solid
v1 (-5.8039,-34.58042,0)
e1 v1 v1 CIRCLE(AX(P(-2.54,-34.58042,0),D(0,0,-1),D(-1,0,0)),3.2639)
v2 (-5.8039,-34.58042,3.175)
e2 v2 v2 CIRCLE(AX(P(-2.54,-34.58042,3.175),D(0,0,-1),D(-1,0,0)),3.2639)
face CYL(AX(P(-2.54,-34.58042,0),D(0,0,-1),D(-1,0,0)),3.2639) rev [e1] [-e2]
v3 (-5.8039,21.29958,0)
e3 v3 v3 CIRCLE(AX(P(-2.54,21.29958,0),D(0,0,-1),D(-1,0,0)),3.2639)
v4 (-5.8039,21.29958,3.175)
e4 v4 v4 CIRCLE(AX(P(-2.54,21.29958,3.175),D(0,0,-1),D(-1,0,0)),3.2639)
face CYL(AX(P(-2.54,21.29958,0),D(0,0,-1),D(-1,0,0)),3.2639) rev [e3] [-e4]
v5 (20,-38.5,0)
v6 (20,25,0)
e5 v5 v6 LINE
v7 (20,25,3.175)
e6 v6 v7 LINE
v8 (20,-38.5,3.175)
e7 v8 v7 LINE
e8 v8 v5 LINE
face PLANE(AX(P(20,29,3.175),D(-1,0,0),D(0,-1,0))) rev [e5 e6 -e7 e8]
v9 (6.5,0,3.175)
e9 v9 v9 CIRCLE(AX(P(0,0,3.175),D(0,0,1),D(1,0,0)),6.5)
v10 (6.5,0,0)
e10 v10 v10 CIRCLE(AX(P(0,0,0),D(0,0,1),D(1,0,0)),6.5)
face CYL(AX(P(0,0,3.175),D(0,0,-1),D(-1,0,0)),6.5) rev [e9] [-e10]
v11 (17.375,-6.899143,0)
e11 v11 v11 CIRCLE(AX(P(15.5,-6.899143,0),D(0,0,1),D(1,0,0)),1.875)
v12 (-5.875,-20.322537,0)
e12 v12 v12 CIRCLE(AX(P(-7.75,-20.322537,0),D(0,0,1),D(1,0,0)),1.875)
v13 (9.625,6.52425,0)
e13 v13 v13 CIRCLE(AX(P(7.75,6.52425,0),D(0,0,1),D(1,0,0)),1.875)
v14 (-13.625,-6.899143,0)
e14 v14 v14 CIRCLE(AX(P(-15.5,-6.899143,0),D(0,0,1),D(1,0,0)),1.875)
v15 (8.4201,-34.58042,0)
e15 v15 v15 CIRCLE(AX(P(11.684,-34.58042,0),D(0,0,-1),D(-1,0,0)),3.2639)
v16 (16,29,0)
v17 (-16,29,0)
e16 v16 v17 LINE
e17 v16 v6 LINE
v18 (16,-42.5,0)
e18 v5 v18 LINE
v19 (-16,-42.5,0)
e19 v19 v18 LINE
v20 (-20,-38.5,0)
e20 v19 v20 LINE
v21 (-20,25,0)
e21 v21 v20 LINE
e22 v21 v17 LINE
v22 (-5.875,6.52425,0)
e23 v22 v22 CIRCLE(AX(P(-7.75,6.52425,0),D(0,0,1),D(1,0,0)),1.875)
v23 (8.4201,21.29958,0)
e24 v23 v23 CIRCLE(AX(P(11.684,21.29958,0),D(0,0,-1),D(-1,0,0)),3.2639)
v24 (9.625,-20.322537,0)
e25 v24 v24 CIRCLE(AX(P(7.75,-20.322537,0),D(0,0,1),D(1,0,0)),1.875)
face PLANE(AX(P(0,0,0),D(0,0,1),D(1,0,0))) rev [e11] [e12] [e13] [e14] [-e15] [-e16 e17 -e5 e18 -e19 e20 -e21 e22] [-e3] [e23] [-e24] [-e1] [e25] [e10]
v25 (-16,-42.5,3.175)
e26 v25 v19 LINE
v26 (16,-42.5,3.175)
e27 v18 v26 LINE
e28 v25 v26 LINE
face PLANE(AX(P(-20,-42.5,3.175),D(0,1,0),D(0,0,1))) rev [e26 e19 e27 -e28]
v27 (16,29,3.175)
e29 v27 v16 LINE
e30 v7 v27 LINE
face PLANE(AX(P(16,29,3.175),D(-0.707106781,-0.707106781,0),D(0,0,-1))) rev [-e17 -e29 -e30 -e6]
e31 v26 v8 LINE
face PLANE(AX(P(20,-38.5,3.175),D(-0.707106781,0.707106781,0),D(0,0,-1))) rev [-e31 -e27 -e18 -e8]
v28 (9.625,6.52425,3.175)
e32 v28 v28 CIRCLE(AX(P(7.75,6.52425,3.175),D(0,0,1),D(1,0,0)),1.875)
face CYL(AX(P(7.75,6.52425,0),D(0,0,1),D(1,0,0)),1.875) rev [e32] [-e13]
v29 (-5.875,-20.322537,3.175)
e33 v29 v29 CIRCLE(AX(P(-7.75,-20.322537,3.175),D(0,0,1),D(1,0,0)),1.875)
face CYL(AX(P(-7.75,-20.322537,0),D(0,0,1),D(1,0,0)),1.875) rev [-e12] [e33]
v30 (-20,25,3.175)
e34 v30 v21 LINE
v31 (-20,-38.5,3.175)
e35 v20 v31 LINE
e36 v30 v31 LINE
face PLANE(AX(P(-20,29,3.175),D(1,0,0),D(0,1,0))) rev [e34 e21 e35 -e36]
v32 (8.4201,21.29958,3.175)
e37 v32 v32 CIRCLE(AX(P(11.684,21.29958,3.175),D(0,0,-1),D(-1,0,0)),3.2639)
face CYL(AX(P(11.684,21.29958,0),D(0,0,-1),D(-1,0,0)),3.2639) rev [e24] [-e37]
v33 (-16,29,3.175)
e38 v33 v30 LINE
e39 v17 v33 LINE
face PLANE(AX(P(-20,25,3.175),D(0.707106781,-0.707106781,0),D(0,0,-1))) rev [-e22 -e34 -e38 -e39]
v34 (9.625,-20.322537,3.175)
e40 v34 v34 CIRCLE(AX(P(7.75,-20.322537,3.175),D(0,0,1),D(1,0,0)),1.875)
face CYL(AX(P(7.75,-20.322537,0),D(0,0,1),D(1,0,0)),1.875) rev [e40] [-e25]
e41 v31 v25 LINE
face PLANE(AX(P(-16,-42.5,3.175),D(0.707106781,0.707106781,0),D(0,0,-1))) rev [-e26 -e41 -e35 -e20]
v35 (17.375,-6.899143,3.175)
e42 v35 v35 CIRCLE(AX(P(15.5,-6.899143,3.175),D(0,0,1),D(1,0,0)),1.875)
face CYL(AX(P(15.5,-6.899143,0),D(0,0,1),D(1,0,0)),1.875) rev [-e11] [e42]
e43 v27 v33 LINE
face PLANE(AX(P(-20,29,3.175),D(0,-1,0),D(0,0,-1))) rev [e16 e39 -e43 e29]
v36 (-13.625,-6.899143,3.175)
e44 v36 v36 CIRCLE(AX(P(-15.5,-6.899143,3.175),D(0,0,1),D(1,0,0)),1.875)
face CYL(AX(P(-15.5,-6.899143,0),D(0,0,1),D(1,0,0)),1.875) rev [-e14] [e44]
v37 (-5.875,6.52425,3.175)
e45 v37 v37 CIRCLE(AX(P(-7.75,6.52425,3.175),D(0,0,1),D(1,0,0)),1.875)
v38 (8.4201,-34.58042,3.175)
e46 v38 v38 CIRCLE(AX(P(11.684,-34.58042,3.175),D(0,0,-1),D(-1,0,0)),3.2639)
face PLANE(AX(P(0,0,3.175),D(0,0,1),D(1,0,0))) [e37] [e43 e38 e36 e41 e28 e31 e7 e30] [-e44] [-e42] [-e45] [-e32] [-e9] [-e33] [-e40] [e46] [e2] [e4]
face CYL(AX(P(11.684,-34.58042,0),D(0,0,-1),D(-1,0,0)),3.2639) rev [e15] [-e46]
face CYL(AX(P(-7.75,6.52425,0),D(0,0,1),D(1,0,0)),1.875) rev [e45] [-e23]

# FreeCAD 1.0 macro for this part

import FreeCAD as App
import Part
import Sketcher
from FreeCAD import Vector


def edges_at(feature, points):
    """Names of the edges that pass closest to the given points."""
    edges = feature.Shape.Edges
    near = lambda p: min(range(len(edges)), key=lambda i: edges[i].distToShape(Part.Vertex(*p))[0])
    return sorted({f"Edge{near(p) + 1}" for p in points})

doc = App.newDocument("Part")
params = doc.addObject("Spreadsheet::Sheet", "Params")
for row, (alias, value) in enumerate([
    ("sketch1_diameter", "13 mm"),
    ("sketch1_width", "40 mm"),
    ("sketch1_height", "71.5 mm"),
    ("pad1_length", "3.175 mm"),
    ("chamfer_size", "4 mm"),
    ("sketch2_diameter", "3.75 mm"),
    ("hole_diameter", "6.5278 mm"),
], start=1):
    params.set(f"A{row}", alias)
    params.set(f"B{row}", "=" + value)
    params.setAlias(f"B{row}", alias)

body = doc.addObject("PartDesign::Body", "Body")

sketch1 = body.newObject("Sketcher::SketchObject", "Sketch")
sketch1.AttachmentSupport = (doc.getObject("XY_Plane"), [""])
sketch1.MapMode = "FlatFace"
sketch1.addGeometry([
    Part.LineSegment(Vector(-20, 29, 0), Vector(-20, -42.5, 0)),
    Part.LineSegment(Vector(-20, -42.5, 0), Vector(20, -42.5, 0)),
    Part.LineSegment(Vector(20, -42.5, 0), Vector(20, 29, 0)),
    Part.LineSegment(Vector(20, 29, 0), Vector(-20, 29, 0)),
    Part.Circle(Vector(0, 0, 0), Vector(0, 0, 1), 6.5),
], False)
sketch1.addConstraint([
    Sketcher.Constraint("Coincident", 0, 2, 1, 1),
    Sketcher.Constraint("Coincident", 1, 2, 2, 1),
    Sketcher.Constraint("Coincident", 2, 2, 3, 1),
    Sketcher.Constraint("Coincident", 3, 2, 0, 1),
    Sketcher.Constraint("Vertical", 0),
    Sketcher.Constraint("Horizontal", 1),
    Sketcher.Constraint("Vertical", 2),
    Sketcher.Constraint("Horizontal", 3),
    Sketcher.Constraint("Coincident", 4, 3, -1, 1),
    Sketcher.Constraint("Diameter", 4, 13.0),
    Sketcher.Constraint("DistanceX", 1, 1, 1, 2, 40.0),
    Sketcher.Constraint("DistanceY", 0, 2, 0, 1, 71.5),
    Sketcher.Constraint("DistanceX", 0, 2, -1, 1, 20.0),
    Sketcher.Constraint("DistanceY", -1, 1, 2, 2, 29.0),
])
sketch1.setExpression("Constraints[9]", "Params.sketch1_diameter")
sketch1.setExpression("Constraints[10]", "Params.sketch1_width")
sketch1.setExpression("Constraints[11]", "Params.sketch1_height")
pad1 = body.newObject("PartDesign::Pad", "Pad")
pad1.Profile = sketch1
pad1.setExpression("Length", "Params.pad1_length")
doc.recompute()

chamfer = body.newObject("PartDesign::Chamfer", "Chamfer")
chamfer.Base = (pad1, edges_at(pad1, [
    (-20, 29, 1.587),
    (20, 29, 1.587),
    (20, -42.5, 1.587),
    (-20, -42.5, 1.587),
]))
chamfer.setExpression("Size", "Params.chamfer_size")

sketch2 = body.newObject("Sketcher::SketchObject", "Sketch001")
sketch2.AttachmentSupport = (doc.getObject("XY_Plane"), [""])
sketch2.MapMode = "FlatFace"
sketch2.AttachmentOffset = App.Placement(Vector(0, 0, 3.175), App.Rotation())
sketch2.addGeometry([
    Part.Circle(Vector(-7.75, 6.52425, 0), Vector(0, 0, 1), 1.875),
    Part.Circle(Vector(7.75, 6.52425, 0), Vector(0, 0, 1), 1.875),
    Part.Circle(Vector(15.5, -6.899143, 0), Vector(0, 0, 1), 1.875),
    Part.Circle(Vector(7.75, -20.322537, 0), Vector(0, 0, 1), 1.875),
    Part.Circle(Vector(-7.75, -20.322537, 0), Vector(0, 0, 1), 1.875),
    Part.Circle(Vector(-15.5, -6.899143, 0), Vector(0, 0, 1), 1.875),
], False)
sketch2.addConstraint([
    Sketcher.Constraint("Equal", 0, 1),
    Sketcher.Constraint("Equal", 1, 2),
    Sketcher.Constraint("Equal", 2, 3),
    Sketcher.Constraint("Equal", 3, 4),
    Sketcher.Constraint("Equal", 4, 5),
    Sketcher.Constraint("Symmetric", 0, 3, 1, 3, -2),
    Sketcher.Constraint("Symmetric", 3, 3, 4, 3, -2),
    Sketcher.Constraint("Symmetric", 2, 3, 5, 3, -2),
    Sketcher.Constraint("Vertical", 1, 3, 3, 3),
    Sketcher.Constraint("Diameter", 0, 3.75),
    Sketcher.Constraint("DistanceX", 5, 3, 2, 3, 31.0),
    Sketcher.Constraint("DistanceX", 0, 3, 1, 3, 15.5),
    Sketcher.Constraint("DistanceY", -1, 1, 0, 3, 6.52425),
    Sketcher.Constraint("DistanceY", 2, 3, -1, 1, 6.899143),
    Sketcher.Constraint("DistanceY", 3, 3, -1, 1, 20.322537),
])
sketch2.setExpression("Constraints[9]", "Params.sketch2_diameter")
pocket1 = body.newObject("PartDesign::Pocket", "Pocket")
pocket1.Profile = sketch2
pocket1.Type = "ThroughAll"

sketch3 = body.newObject("Sketcher::SketchObject", "Sketch002")
sketch3.AttachmentSupport = (doc.getObject("XY_Plane"), [""])
sketch3.MapMode = "FlatFace"
sketch3.addGeometry([
    Part.Circle(Vector(11.684, 21.29958, 0), Vector(0, 0, 1), 3.2639),
    Part.Circle(Vector(-2.54, 21.29958, 0), Vector(0, 0, 1), 3.2639),
    Part.Circle(Vector(11.684, -34.58042, 0), Vector(0, 0, 1), 3.2639),
    Part.Circle(Vector(-2.54, -34.58042, 0), Vector(0, 0, 1), 3.2639),
], False)
sketch3.addConstraint([
    Sketcher.Constraint("Equal", 0, 1),
    Sketcher.Constraint("Equal", 1, 2),
    Sketcher.Constraint("Equal", 2, 3),
    Sketcher.Constraint("Horizontal", 0, 3, 1, 3),
    Sketcher.Constraint("Horizontal", 2, 3, 3, 3),
    Sketcher.Constraint("Vertical", 0, 3, 2, 3),
    Sketcher.Constraint("Vertical", 1, 3, 3, 3),
    Sketcher.Constraint("Diameter", 0, 6.5278),
    Sketcher.Constraint("DistanceX", 1, 3, -1, 1, 2.54),
    Sketcher.Constraint("DistanceY", 2, 3, 0, 3, 55.88),
    Sketcher.Constraint("DistanceX", -1, 1, 0, 3, 11.684),
    Sketcher.Constraint("DistanceY", -1, 1, 0, 3, 21.29958),
])
doc.recompute()
hole = body.newObject("PartDesign::Hole", "Hole")
hole.Profile = sketch3
hole.ThreadType = "None"
hole.setExpression("Diameter", "Params.hole_diameter")
hole.DepthType = "ThroughAll"
hole.Reversed = True

doc.recompute()
